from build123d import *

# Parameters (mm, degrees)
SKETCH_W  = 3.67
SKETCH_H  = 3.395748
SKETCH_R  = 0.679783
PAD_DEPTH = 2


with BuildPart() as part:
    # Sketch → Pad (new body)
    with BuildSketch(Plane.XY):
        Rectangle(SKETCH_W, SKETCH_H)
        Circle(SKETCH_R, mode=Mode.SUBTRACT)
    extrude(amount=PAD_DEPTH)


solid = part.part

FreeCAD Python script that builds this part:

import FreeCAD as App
import Part
import Sketcher
Q = App.Units.Quantity

doc = App.newDocument("Part")
body = doc.addObject("PartDesign::Body", "Body")

# Sketch on XY plane
sketch1 = doc.addObject("Sketcher::SketchObject", "Sketch")
body.addObject(sketch1)
sketch1.AttachmentSupport = (doc.XY_Plane, [""])
sketch1.MapMode = "FlatFace"
sketch1.addGeometry(Part.LineSegment(App.Vector(-1.8, 1.7, 0), App.Vector(-1.8, -1.7, 0)), False)
sketch1.addGeometry(Part.LineSegment(App.Vector(-1.8, -1.7, 0), App.Vector(1.8, -1.7, 0)), False)
sketch1.addGeometry(Part.LineSegment(App.Vector(1.8, -1.7, 0), App.Vector(1.8, 1.7, 0)), False)
sketch1.addGeometry(Part.LineSegment(App.Vector(1.8, 1.7, 0), App.Vector(-1.8, 1.7, 0)), False)
sketch1.addGeometry(Part.Circle(App.Vector(0, 0, 0), App.Vector(0, 0, 1), 0.7), False)
sketch1.addConstraint(Sketcher.Constraint("Coincident", 0, 2, 1, 1))
sketch1.addConstraint(Sketcher.Constraint("Coincident", 1, 2, 2, 1))
sketch1.addConstraint(Sketcher.Constraint("Coincident", 2, 2, 3, 1))
sketch1.addConstraint(Sketcher.Constraint("Coincident", 3, 2, 0, 1))
sketch1.addConstraint(Sketcher.Constraint("Vertical", 0))
sketch1.addConstraint(Sketcher.Constraint("Horizontal", 1))
sketch1.addConstraint(Sketcher.Constraint("Vertical", 2))
sketch1.addConstraint(Sketcher.Constraint("Horizontal", 3))
sketch1.addConstraint(Sketcher.Constraint("Coincident", 4, 3, -1, 1))
sketch1.addConstraint(Sketcher.Constraint("Symmetric", 0, 2, 2, 2, -1, 1))
sketch1.addConstraint(Sketcher.Constraint("DistanceX", 1, 1, 1, 2, Q("3.67 mm")))
sketch1.addConstraint(Sketcher.Constraint("Diameter", 4, Q("1.359566 mm")))
sketch1.addConstraint(Sketcher.Constraint("DistanceY", 0, 2, 0, 1, Q("3.395748 mm")))
pad1 = doc.addObject("PartDesign::Pad", "Pad")
body.addObject(pad1)
pad1.Profile = sketch1
pad1.Length = 2

doc.recompute()
